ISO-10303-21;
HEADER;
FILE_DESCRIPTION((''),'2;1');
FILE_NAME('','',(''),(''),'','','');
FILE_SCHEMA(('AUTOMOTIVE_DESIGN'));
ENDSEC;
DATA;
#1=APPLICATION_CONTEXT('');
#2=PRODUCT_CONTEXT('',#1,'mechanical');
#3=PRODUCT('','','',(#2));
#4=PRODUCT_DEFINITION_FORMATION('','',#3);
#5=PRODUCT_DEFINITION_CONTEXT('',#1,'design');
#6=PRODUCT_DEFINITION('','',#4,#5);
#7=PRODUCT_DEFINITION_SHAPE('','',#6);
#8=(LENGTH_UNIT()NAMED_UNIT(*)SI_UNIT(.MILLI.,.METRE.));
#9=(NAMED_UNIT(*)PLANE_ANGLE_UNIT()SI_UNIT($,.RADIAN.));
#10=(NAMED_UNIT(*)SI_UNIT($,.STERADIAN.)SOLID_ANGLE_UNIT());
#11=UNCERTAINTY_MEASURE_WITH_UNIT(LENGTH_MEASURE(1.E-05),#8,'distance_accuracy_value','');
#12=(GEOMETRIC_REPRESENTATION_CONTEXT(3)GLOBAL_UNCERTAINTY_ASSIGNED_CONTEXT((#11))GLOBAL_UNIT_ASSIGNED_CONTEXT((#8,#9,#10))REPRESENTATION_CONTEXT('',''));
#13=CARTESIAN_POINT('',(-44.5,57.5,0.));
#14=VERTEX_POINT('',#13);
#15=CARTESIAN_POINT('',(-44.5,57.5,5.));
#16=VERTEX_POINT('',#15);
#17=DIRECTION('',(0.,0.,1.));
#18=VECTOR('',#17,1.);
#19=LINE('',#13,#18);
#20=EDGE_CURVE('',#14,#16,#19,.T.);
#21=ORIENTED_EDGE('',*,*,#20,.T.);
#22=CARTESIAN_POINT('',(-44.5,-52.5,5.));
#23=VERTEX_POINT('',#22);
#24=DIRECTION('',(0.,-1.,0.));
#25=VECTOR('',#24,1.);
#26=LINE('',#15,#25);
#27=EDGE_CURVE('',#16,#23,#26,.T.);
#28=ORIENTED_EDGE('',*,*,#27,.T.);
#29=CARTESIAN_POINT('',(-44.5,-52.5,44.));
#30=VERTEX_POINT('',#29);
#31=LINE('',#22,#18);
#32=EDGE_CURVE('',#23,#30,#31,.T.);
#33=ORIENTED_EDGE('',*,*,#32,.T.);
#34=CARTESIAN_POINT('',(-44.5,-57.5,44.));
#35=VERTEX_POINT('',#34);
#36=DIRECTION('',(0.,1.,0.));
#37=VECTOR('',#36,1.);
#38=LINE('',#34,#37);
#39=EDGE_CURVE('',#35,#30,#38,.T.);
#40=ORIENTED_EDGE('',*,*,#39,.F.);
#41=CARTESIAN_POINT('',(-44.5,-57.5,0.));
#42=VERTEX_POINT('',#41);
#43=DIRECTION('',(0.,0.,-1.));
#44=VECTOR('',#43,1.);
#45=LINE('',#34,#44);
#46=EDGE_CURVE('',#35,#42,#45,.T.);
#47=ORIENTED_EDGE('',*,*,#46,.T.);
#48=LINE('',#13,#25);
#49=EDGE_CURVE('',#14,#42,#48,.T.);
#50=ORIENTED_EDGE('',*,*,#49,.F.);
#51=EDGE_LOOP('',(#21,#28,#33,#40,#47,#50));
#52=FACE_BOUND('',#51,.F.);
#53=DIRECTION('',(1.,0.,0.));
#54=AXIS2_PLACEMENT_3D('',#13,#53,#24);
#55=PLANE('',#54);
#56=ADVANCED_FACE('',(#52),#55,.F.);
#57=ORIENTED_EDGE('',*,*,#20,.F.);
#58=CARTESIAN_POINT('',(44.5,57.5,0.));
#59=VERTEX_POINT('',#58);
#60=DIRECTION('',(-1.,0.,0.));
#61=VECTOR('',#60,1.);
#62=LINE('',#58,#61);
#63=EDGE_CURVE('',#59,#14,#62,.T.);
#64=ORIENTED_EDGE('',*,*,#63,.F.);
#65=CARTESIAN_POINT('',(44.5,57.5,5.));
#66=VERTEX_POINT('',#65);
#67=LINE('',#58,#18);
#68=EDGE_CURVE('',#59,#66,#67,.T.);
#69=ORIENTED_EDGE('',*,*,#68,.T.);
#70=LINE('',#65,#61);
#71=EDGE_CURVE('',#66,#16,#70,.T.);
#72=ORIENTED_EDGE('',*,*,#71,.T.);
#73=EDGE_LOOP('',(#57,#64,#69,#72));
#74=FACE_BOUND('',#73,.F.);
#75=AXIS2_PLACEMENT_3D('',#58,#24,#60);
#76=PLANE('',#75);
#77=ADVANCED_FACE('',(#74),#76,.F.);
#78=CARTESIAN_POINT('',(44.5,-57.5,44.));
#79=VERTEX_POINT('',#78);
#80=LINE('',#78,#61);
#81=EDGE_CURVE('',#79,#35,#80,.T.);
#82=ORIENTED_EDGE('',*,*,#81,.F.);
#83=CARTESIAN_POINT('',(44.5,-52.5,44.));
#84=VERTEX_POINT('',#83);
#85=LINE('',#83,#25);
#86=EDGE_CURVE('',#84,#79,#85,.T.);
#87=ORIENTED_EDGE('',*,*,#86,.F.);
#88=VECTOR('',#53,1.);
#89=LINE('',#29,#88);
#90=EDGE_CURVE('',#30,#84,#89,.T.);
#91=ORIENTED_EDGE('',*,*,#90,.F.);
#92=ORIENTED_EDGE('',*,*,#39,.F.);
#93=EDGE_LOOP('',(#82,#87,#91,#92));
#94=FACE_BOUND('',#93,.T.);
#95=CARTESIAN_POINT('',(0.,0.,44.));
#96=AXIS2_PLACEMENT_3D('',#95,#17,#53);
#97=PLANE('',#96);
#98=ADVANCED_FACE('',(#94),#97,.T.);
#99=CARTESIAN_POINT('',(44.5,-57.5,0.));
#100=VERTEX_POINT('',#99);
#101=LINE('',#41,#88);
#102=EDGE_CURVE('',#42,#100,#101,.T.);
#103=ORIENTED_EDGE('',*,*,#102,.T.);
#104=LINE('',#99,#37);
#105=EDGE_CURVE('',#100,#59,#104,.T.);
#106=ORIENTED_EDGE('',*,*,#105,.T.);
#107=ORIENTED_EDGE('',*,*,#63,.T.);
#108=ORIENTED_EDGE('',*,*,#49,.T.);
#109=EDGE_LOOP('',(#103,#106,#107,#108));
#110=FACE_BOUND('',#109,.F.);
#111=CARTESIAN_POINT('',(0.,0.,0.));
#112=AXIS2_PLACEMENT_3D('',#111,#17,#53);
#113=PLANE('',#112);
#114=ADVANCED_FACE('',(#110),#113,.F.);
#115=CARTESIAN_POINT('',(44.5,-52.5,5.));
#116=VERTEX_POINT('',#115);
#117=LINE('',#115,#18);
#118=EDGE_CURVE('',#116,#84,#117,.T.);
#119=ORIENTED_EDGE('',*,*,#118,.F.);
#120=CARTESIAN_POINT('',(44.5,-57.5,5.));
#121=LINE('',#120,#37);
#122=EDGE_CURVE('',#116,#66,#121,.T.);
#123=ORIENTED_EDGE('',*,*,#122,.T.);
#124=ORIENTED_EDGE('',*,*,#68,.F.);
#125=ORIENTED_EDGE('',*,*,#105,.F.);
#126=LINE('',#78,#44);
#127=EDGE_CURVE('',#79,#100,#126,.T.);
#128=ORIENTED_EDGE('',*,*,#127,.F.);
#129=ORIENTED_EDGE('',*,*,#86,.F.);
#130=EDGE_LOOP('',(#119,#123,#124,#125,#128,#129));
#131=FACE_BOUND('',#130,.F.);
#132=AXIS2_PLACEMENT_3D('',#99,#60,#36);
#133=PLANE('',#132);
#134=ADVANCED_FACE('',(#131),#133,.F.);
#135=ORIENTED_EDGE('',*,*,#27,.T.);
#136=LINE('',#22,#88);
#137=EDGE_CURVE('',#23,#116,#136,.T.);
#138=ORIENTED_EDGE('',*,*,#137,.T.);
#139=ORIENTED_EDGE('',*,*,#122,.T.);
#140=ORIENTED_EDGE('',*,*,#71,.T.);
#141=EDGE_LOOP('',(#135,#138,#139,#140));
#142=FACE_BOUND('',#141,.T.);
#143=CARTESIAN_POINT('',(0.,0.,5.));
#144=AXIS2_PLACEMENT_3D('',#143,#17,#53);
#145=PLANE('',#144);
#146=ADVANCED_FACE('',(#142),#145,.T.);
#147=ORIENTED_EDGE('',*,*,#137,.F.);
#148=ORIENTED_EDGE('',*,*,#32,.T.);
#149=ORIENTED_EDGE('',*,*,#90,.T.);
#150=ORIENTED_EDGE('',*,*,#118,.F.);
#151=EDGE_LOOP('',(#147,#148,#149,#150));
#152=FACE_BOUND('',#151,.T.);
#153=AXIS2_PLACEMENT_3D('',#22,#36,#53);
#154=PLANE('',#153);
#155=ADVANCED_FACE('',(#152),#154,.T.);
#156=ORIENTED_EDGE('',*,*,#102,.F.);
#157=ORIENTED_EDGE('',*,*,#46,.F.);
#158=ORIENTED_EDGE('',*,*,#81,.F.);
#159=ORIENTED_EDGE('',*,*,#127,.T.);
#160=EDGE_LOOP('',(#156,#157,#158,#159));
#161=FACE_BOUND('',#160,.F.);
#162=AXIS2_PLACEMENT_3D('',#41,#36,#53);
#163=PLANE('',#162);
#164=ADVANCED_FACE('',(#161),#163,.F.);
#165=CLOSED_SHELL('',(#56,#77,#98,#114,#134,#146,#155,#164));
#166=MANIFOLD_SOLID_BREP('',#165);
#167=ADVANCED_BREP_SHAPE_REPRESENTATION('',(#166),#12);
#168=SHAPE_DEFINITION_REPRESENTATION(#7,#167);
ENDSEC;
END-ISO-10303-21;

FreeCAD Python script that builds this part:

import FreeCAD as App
import Part
import Sketcher

V = App.Vector
Q = App.Units.Quantity


def add_polygon(sketch, points):
    """Adds a closed chain of lines whose ends are joined by coincident constraints."""
    first, n = sketch.GeometryCount, len(points)
    for a, b in zip(points, points[1:] + points[:1]):
        sketch.addGeometry(Part.LineSegment(App.Vector(*a, 0), App.Vector(*b, 0)), False)
    for i in range(n):
        sketch.addConstraint(Sketcher.Constraint("Coincident", first + i, 2, first + (i + 1) % n, 1))

doc = App.newDocument("Part")
params = doc.addObject("Spreadsheet::Sheet", "Params")
for row, (alias, value) in enumerate([
    ("sketch1_width", "89 mm"),
    ("sketch1_height", "115 mm"),
    ("pad1_length", "5 mm"),
    ("sketch2_width", "89 mm"),
    ("sketch2_height", "5 mm"),
    ("pad2_length", "39 mm"),
], start=1):
    params.set(f"A{row}", alias)
    params.set(f"B{row}", "=" + value)
    params.setAlias(f"B{row}", alias)

body = doc.addObject("PartDesign::Body", "Body")

sketch1 = body.newObject("Sketcher::SketchObject", "Sketch")
sketch1.AttachmentSupport = (doc.getObject("XY_Plane"), [""])
sketch1.MapMode = "FlatFace"
add_polygon(sketch1, [(44, -58), (44, 58), (-44, 58), (-44, -58)])
sketch1.addConstraint([
    Sketcher.Constraint("Vertical", 0),
    Sketcher.Constraint("Horizontal", 1),
    Sketcher.Constraint("Vertical", 2),
    Sketcher.Constraint("Horizontal", 3),
    Sketcher.Constraint("Symmetric", 0, 2, 2, 2, -1, 1),
    Sketcher.Constraint("DistanceX", 1, 2, 1, 1, Q("89 mm")),
    Sketcher.Constraint("DistanceY", 0, 1, 0, 2, Q("115 mm")),
])
sketch1.setExpression("Constraints[9]", "Params.sketch1_width")
sketch1.setExpression("Constraints[10]", "Params.sketch1_height")
pad1 = body.newObject("PartDesign::Pad", "Pad")
pad1.Profile = sketch1
pad1.setExpression("Length", "Params.pad1_length")

sketch2 = body.newObject("Sketcher::SketchObject", "Sketch001")
sketch2.AttachmentSupport = (doc.getObject("XY_Plane"), [""])
sketch2.MapMode = "FlatFace"
sketch2.AttachmentOffset = App.Placement(V(0, 0, 5), App.Rotation())
add_polygon(sketch2, [(44, -52), (-44, -52), (-44, -58), (44, -58)])
sketch2.addConstraint([
    Sketcher.Constraint("Horizontal", 0),
    Sketcher.Constraint("Vertical", 1),
    Sketcher.Constraint("Horizontal", 2),
    Sketcher.Constraint("Vertical", 3),
    Sketcher.Constraint("DistanceX", 0, 2, 0, 1, Q("89 mm")),
    Sketcher.Constraint("DistanceY", 1, 2, 1, 1, Q("5 mm")),
    Sketcher.Constraint("DistanceX", 0, 2, -1, 1, Q("44.5 mm")),
    Sketcher.Constraint("DistanceY", 0, 2, -1, 1, Q("52.5 mm")),
])
sketch2.setExpression("Constraints[8]", "Params.sketch2_width")
sketch2.setExpression("Constraints[9]", "Params.sketch2_height")
pad2 = body.newObject("PartDesign::Pad", "Pad001")
pad2.Profile = sketch2
pad2.setExpression("Length", "Params.pad2_length")

doc.recompute()
